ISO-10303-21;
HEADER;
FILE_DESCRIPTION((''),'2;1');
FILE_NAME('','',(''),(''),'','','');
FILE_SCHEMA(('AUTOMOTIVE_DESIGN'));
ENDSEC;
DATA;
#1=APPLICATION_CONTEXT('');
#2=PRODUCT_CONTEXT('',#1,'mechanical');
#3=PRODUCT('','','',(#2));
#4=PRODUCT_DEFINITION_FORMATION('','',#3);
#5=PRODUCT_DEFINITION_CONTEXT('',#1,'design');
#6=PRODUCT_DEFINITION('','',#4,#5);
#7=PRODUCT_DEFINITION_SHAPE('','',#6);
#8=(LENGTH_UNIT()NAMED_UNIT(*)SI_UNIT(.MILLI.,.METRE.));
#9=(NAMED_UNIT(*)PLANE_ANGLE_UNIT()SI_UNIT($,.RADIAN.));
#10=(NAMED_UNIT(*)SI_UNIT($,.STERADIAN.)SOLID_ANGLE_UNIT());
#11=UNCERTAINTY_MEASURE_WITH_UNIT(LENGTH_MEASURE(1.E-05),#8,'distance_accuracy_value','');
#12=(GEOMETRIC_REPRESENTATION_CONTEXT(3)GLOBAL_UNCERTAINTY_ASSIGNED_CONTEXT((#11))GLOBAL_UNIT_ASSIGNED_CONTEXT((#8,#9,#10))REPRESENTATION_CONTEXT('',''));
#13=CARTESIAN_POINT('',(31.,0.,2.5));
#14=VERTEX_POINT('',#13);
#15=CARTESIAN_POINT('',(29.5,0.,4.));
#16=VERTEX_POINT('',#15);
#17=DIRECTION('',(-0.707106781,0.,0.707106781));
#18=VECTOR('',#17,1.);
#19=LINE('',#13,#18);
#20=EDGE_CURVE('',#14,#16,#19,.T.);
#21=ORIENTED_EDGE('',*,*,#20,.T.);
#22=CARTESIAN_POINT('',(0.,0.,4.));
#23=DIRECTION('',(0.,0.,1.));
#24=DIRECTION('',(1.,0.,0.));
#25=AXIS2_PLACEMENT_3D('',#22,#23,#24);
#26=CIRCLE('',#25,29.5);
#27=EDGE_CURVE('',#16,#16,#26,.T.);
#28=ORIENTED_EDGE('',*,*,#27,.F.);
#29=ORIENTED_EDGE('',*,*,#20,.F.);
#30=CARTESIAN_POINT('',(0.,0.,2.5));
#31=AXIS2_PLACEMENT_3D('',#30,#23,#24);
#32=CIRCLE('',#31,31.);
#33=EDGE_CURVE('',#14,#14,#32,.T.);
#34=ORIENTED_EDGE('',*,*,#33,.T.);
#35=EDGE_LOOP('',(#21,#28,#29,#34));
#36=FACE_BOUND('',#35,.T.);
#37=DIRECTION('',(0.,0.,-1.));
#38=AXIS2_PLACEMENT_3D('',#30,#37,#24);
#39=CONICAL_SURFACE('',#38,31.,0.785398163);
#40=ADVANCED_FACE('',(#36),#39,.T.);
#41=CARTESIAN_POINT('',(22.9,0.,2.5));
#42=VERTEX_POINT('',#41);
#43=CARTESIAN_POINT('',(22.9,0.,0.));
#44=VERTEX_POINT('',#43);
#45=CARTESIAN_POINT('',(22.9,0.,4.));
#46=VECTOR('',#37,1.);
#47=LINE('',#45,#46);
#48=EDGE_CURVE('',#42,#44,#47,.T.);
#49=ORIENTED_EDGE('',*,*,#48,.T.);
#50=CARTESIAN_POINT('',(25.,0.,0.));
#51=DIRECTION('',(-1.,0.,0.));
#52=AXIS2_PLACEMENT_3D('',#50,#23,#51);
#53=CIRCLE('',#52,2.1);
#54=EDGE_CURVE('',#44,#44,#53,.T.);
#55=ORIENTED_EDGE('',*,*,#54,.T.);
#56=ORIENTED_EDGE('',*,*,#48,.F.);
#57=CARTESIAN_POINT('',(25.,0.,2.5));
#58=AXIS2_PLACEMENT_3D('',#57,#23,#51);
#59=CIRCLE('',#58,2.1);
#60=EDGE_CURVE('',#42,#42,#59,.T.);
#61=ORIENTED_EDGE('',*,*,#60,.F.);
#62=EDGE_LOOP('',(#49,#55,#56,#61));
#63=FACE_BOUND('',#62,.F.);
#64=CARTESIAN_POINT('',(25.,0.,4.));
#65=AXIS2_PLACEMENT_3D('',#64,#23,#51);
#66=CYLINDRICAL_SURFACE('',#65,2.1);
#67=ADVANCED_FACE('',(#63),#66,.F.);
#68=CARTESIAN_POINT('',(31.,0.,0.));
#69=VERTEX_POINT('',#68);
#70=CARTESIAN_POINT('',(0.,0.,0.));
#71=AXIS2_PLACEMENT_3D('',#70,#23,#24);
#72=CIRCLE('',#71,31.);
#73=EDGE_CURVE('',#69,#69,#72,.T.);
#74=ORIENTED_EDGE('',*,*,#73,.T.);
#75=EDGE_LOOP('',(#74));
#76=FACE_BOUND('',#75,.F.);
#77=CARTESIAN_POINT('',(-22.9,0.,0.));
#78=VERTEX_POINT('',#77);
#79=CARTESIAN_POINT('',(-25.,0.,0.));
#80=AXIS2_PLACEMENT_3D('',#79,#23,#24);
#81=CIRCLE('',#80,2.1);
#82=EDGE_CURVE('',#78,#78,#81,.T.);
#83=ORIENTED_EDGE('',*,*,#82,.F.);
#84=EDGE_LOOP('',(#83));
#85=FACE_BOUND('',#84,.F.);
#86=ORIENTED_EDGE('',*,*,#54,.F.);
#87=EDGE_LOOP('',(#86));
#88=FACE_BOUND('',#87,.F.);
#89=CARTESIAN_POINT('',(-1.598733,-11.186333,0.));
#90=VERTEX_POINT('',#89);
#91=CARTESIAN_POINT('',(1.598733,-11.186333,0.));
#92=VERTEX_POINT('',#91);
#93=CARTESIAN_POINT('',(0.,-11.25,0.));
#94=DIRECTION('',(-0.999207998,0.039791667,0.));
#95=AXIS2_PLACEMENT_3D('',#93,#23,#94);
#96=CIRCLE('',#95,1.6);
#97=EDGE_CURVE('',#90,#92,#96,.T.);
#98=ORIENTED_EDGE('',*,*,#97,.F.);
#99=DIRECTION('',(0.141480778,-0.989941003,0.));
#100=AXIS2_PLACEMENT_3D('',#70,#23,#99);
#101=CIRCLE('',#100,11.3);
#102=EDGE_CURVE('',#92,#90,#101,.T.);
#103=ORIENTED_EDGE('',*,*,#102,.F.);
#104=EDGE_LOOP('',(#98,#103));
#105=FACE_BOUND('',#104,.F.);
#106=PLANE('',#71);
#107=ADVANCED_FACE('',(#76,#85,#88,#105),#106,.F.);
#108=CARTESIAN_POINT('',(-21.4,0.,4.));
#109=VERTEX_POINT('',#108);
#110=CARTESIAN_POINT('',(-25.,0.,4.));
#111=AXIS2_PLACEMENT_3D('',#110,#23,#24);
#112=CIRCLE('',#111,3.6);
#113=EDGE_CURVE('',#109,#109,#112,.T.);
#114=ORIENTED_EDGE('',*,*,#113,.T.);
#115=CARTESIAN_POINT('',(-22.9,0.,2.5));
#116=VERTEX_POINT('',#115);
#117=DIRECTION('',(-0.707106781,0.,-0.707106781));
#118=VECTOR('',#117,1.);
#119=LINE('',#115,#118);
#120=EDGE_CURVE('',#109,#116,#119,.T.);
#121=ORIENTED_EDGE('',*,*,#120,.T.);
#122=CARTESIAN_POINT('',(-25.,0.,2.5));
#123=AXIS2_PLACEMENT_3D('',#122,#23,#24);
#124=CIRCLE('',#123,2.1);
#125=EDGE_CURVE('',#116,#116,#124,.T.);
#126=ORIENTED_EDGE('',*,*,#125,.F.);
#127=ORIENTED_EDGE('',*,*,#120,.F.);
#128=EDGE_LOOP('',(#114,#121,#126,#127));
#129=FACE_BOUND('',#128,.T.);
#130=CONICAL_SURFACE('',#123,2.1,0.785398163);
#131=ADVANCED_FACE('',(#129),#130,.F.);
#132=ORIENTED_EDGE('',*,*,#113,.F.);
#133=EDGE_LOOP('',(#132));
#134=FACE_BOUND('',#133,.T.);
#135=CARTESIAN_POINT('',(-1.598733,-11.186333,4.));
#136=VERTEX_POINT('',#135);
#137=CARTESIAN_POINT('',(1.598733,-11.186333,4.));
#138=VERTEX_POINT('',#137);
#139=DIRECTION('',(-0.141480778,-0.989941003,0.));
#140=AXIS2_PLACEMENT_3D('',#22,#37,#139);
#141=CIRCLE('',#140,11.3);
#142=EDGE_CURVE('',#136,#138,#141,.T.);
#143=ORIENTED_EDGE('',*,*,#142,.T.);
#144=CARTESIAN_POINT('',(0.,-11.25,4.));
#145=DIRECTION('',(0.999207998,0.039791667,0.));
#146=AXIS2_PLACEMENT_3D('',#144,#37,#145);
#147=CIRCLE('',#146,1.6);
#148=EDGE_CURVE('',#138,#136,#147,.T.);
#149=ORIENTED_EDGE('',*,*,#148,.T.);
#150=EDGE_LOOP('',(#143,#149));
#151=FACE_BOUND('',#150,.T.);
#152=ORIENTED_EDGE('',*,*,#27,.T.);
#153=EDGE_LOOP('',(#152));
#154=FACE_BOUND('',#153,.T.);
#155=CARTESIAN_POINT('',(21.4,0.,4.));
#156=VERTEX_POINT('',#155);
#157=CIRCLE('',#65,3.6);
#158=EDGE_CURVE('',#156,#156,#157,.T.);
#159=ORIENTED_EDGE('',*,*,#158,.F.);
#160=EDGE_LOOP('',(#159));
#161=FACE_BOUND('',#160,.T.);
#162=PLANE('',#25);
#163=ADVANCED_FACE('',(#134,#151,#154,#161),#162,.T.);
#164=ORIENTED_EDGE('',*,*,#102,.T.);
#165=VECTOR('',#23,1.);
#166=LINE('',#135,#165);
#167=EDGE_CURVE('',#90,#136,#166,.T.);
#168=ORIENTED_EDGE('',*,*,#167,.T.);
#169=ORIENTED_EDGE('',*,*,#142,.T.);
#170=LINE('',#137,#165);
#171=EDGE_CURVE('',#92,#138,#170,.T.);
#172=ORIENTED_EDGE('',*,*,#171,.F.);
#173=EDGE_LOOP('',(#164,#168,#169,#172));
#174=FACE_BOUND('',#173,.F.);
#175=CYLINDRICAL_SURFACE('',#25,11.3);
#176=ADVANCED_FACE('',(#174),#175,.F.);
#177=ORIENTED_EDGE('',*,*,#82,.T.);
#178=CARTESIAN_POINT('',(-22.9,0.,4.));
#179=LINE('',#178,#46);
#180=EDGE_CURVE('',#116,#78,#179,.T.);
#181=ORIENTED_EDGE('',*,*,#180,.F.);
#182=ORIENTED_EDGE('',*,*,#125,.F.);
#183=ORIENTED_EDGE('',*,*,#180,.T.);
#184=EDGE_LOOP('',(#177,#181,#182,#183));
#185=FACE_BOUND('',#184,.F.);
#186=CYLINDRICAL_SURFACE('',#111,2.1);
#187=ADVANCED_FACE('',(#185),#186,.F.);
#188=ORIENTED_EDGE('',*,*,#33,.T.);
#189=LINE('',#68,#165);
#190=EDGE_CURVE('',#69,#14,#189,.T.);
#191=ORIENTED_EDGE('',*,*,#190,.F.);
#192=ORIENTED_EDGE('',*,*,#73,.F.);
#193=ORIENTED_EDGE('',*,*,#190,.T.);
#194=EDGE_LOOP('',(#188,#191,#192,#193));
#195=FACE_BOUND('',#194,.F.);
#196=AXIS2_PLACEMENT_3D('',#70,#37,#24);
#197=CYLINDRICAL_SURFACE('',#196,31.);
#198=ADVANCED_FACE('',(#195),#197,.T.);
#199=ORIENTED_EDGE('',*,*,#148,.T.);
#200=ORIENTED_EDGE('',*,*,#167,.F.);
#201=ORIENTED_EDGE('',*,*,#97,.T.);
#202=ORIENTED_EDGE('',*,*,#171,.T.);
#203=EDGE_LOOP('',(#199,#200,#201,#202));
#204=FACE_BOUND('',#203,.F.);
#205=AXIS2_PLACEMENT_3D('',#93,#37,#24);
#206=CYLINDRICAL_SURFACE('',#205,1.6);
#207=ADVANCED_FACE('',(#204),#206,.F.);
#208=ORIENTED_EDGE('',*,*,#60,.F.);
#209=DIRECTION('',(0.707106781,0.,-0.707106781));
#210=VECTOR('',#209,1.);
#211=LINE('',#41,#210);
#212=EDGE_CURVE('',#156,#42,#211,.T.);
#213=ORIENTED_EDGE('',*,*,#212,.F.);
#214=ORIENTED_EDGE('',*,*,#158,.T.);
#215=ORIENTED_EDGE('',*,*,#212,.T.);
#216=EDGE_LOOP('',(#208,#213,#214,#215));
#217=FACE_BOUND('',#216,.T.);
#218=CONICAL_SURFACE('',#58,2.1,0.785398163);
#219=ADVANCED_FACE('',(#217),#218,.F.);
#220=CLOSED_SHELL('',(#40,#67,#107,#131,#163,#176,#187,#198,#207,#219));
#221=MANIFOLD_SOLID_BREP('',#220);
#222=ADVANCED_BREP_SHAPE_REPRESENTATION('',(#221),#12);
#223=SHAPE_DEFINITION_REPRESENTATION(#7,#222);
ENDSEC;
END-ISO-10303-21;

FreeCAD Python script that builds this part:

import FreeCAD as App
import Part
import Sketcher
Q = App.Units.Quantity


def edges_at(feature, points):
    """Names of the edges that pass closest to the given points."""
    edges = feature.Shape.Edges
    near = lambda p: min(range(len(edges)), key=lambda i: edges[i].distToShape(Part.Vertex(*p))[0])
    return sorted({f"Edge{near(p) + 1}" for p in points})

doc = App.newDocument("Part")
body = doc.addObject("PartDesign::Body", "Body")

# Sketch on XY plane
sketch1 = body.newObject("Sketcher::SketchObject", "Sketch")
sketch1.AttachmentSupport = (doc.getObject("XY_Plane"), [""])
sketch1.MapMode = "FlatFace"
sketch1.addGeometry(Part.Circle(App.Vector(0, 0, 0), App.Vector(0, 0, 1), 31), False)
sketch1.addConstraint([
    Sketcher.Constraint("Coincident", 0, 3, -1, 1),
    Sketcher.Constraint("Diameter", 0, Q("62 mm")),
])
pad1 = body.newObject("PartDesign::Pad", "Pad")
pad1.Profile = sketch1
pad1.Length = 4

# Sketch on XY plane
sketch2 = body.newObject("Sketcher::SketchObject", "Sketch001")
sketch2.AttachmentSupport = (doc.getObject("XY_Plane"), [""])
sketch2.MapMode = "FlatFace"
sketch2.AttachmentOffset = App.Placement(App.Vector(0, 0, 4), App.Rotation())
sketch2.addGeometry(Part.Circle(App.Vector(0, 0, 0), App.Vector(0, 0, 1), 11.3), False)
sketch2.addConstraint([
    Sketcher.Constraint("Coincident", 0, 3, -1, 1),
    Sketcher.Constraint("Diameter", 0, Q("22.6 mm")),
])
pocket1 = body.newObject("PartDesign::Pocket", "Pocket")
pocket1.Profile = sketch2
pocket1.Type = "ThroughAll"

# Sketch on XY plane
sketch3 = body.newObject("Sketcher::SketchObject", "Sketch002")
sketch3.AttachmentSupport = (doc.getObject("XY_Plane"), [""])
sketch3.MapMode = "FlatFace"
sketch3.AttachmentOffset = App.Placement(App.Vector(0, 0, 4), App.Rotation())
sketch3.addGeometry(Part.Circle(App.Vector(-25, 0, 0), App.Vector(0, 0, 1), 2.1), False)
sketch3.addConstraint([
    Sketcher.Constraint("PointOnObject", 0, 3, -1),
    Sketcher.Constraint("Diameter", 0, Q("4.2 mm")),
    Sketcher.Constraint("DistanceX", 0, 3, -1, 1, Q("25 mm")),
])
pocket2 = body.newObject("PartDesign::Pocket", "Pocket001")
pocket2.Profile = sketch3
pocket2.Type = "ThroughAll"

# Sketch on XY plane
sketch4 = body.newObject("Sketcher::SketchObject", "Sketch003")
sketch4.AttachmentSupport = (doc.getObject("XY_Plane"), [""])
sketch4.MapMode = "FlatFace"
sketch4.addGeometry(Part.Circle(App.Vector(0, -11.25, 0), App.Vector(0, 0, 1), 1.6), False)
sketch4.addConstraint([
    Sketcher.Constraint("PointOnObject", 0, 3, -2),
    Sketcher.Constraint("Diameter", 0, Q("3.2 mm")),
    Sketcher.Constraint("DistanceY", 0, 3, -1, 1, Q("11.25 mm")),
])
pocket3 = body.newObject("PartDesign::Pocket", "Pocket002")
pocket3.Profile = sketch4
pocket3.Type = "ThroughAll"
pocket3.Reversed = True
doc.recompute()

polarpattern = body.newObject("PartDesign::PolarPattern", "PolarPattern")
polarpattern.Originals = [pocket2]
polarpattern.Axis = (doc.getObject("Z_Axis"), [""])
polarpattern.Angle = 360
polarpattern.Occurrences = 2
body.Tip = polarpattern
doc.recompute()

chamfer = body.newObject("PartDesign::Chamfer", "Chamfer")
chamfer.Base = (polarpattern, edges_at(polarpattern, [(-31, 0, 4)]))
chamfer.Size = 1.5
doc.recompute()

chamfer2 = body.newObject("PartDesign::Chamfer", "Chamfer001")
chamfer2.Base = (chamfer, edges_at(chamfer, [(27.1, 0, 4), (-27.1, 0, 4)]))
chamfer2.Size = 1.5

doc.recompute()
